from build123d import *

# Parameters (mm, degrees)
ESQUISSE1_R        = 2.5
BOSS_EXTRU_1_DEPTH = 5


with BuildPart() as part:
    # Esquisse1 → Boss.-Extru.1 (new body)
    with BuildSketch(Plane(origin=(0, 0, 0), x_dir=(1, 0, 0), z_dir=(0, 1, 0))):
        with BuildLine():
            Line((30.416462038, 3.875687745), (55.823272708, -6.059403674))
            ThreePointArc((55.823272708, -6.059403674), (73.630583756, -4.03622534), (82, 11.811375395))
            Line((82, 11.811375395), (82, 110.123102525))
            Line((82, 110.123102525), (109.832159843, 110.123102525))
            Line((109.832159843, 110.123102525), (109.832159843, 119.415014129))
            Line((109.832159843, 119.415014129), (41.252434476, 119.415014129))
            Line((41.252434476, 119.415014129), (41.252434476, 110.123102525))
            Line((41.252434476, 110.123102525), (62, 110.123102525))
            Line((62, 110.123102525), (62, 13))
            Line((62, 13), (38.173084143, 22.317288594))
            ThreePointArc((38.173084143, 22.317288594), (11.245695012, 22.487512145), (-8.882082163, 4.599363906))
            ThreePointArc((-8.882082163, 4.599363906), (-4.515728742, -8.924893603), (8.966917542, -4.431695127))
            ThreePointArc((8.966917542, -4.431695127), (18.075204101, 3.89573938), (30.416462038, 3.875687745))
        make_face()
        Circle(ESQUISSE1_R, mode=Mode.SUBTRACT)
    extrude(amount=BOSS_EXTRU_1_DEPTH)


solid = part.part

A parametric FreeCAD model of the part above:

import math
import FreeCAD as App
import Part
import Sketcher
Q = App.Units.Quantity

doc = App.newDocument("Part")
params = doc.addObject("Spreadsheet::Sheet", "Params")
for row, (alias, value) in enumerate([
    ("sketch1_diameter", "5 mm"),
    ("pad1_length", "5 mm"),
], start=1):
    params.set(f"A{row}", alias)
    params.set(f"B{row}", "=" + value)
    params.setAlias(f"B{row}", alias)

body = doc.addObject("PartDesign::Body", "Body")

# Sketch on XZ plane
sketch1 = doc.addObject("Sketcher::SketchObject", "Sketch")
body.addObject(sketch1)
sketch1.AttachmentSupport = (doc.XZ_Plane, [""])
sketch1.MapMode = "FlatFace"
sketch1.addGeometry([
    Part.LineSegment(App.Vector(30.4, -3.9, 0), App.Vector(55.8, 6.1, 0)),  # 0
    Part.ArcOfCircle(Part.Circle(App.Vector(62.8, -11.8, 0), App.Vector(0, 0, 1), 19.2), math.radians(0), math.radians(111)),  # 1
    Part.LineSegment(App.Vector(82, -11.8, 0), App.Vector(82, -110.1, 0)),  # 2
    Part.LineSegment(App.Vector(82, -110.1, 0), App.Vector(109.8, -110.1, 0)),  # 3
    Part.LineSegment(App.Vector(109.8, -110.1, 0), App.Vector(109.8, -119.4, 0)),  # 4
    Part.LineSegment(App.Vector(109.8, -119.4, 0), App.Vector(41.3, -119.4, 0)),  # 5
    Part.LineSegment(App.Vector(41.3, -119.4, 0), App.Vector(41.3, -110.1, 0)),  # 6
    Part.LineSegment(App.Vector(41.3, -110.1, 0), App.Vector(62, -110.1, 0)),  # 7
    Part.LineSegment(App.Vector(62, -110.1, 0), App.Vector(62, -13, 0)),  # 8
    Part.LineSegment(App.Vector(62, -13, 0), App.Vector(38.2, -22.3, 0)),  # 9
    Part.ArcOfCircle(Part.Circle(App.Vector(24.5, 12.7, 0), App.Vector(0, 0, 1), 37.6), math.radians(-153), math.radians(-69)),  # 10
    Part.ArcOfCircle(Part.Circle(App.Vector(0, 0, 0), App.Vector(0, 0, 1), 10), math.radians(26), math.radians(207)),  # 11
    Part.ArcOfCircle(Part.Circle(App.Vector(24.2, 12, 0), App.Vector(0, 0, 1), 17), math.radians(-154), math.radians(-69)),  # 12
    Part.Circle(App.Vector(0, 0, 0), App.Vector(0, 0, 1), 2.5),  # 13
], False)
sketch1.addConstraint([
    Sketcher.Constraint("Tangent", 0, 2, 1, 2),
    Sketcher.Constraint("Tangent", 1, 1, 2, 1),
    Sketcher.Constraint("Coincident", 2, 2, 3, 1),
    Sketcher.Constraint("Coincident", 3, 2, 4, 1),
    Sketcher.Constraint("Coincident", 4, 2, 5, 1),
    Sketcher.Constraint("Coincident", 5, 2, 6, 1),
    Sketcher.Constraint("Coincident", 6, 2, 7, 1),
    Sketcher.Constraint("Coincident", 7, 2, 8, 1),
    Sketcher.Constraint("Coincident", 8, 2, 9, 1),
    Sketcher.Constraint("Tangent", 9, 2, 10, 2),
    Sketcher.Constraint("Tangent", 10, 1, 11, 2),
    Sketcher.Constraint("Tangent", 11, 1, 12, 1),
    Sketcher.Constraint("Tangent", 12, 2, 0, 1),
    Sketcher.Constraint("Vertical", 2),
    Sketcher.Constraint("Horizontal", 3),
    Sketcher.Constraint("Vertical", 4),
    Sketcher.Constraint("Horizontal", 5),
    Sketcher.Constraint("Vertical", 6),
    Sketcher.Constraint("Horizontal", 7),
    Sketcher.Constraint("Vertical", 8),
    Sketcher.Constraint("Coincident", 11, 3, -1, 1),
    Sketcher.Constraint("Coincident", 13, 3, -1, 1),
    Sketcher.Constraint("Parallel", 0, 9),
    Sketcher.Constraint("Horizontal", 3, 2, 6, 2),
    Sketcher.Constraint("Diameter", 13, Q("5 mm")),
    Sketcher.Constraint("DistanceX", -1, 1, 1, 1, Q("82 mm")),
    Sketcher.Constraint("DistanceX", -1, 1, 7, 2, Q("62 mm")),
    Sketcher.Constraint("DistanceY", 8, 2, -1, 1, Q("13 mm")),
    Sketcher.Constraint("Radius", 1, Q("19.188529 mm")),
    Sketcher.Constraint("Radius", 10, Q("37.578227 mm")),
    Sketcher.Constraint("Radius", 11, Q("10.002276 mm")),
    Sketcher.Constraint("Radius", 12, Q("17.014348 mm")),
    Sketcher.Constraint("DistanceX", 10, 1, 11, 1, Q("17.849 mm")),
    Sketcher.Constraint("DistanceX", 3, 1, 3, 2, Q("27.83216 mm")),
    Sketcher.Constraint("DistanceY", 4, 2, 4, 1, Q("9.291912 mm")),
    Sketcher.Constraint("DistanceX", 12, 3, 1, 3, Q("38.5914 mm")),
    Sketcher.Constraint("DistanceY", 2, 2, 10, 3, Q("122.803399 mm")),
    Sketcher.Constraint("DistanceX", 5, 2, 5, 1, Q("68.579725 mm")),
])
sketch1.setExpression("Constraints[24]", "Params.sketch1_diameter")
pad1 = doc.addObject("PartDesign::Pad", "Pad")
body.addObject(pad1)
pad1.Profile = sketch1
pad1.setExpression("Length", "Params.pad1_length")
pad1.Reversed = True

doc.recompute()
